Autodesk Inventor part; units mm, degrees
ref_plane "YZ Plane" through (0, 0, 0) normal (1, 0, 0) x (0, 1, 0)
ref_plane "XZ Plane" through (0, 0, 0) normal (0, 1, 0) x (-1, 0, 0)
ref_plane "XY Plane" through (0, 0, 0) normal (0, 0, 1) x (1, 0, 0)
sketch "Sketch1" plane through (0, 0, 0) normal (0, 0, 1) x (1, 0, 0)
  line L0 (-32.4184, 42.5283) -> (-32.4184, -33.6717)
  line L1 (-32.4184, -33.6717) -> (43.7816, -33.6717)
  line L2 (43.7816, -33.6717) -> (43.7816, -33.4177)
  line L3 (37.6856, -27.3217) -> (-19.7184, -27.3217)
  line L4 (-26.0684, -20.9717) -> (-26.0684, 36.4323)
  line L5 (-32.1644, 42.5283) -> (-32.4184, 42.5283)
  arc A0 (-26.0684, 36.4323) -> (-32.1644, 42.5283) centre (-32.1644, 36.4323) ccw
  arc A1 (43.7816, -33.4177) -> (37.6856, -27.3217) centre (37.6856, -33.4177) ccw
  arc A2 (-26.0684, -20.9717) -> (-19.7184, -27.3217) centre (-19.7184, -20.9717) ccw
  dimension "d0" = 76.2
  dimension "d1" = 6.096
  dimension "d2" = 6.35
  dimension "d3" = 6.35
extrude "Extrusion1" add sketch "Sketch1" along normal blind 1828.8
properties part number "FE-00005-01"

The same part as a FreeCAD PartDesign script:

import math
import FreeCAD as App
import Part
import Sketcher
Q = App.Units.Quantity

doc = App.newDocument("Part")
params = doc.addObject("Spreadsheet::Sheet", "Params")
for row, (alias, value) in enumerate([
    ("sketch1_width", "3 in"),
    ("sketch1_radius", "0.24 in"),
    ("sketch1_radius2", "0.25 in"),
    ("pad1_length", "72 in"),
], start=1):
    params.set(f"A{row}", alias)
    params.set(f"B{row}", "=" + value)
    params.setAlias(f"B{row}", alias)

body = doc.addObject("PartDesign::Body", "Body")

sketch1 = doc.addObject("Sketcher::SketchObject", "Sketch")
body.addObject(sketch1)
sketch1.AttachmentSupport = (doc.XY_Plane, [""])
sketch1.MapMode = "FlatFace"
sketch1.addGeometry(Part.LineSegment(App.Vector(-32.16, 42.53, 0), App.Vector(-32.42, 42.53, 0)), False)
sketch1.addGeometry(Part.LineSegment(App.Vector(-32.42, 42.53, 0), App.Vector(-32.42, -33.67, 0)), False)
sketch1.addGeometry(Part.LineSegment(App.Vector(-32.42, -33.67, 0), App.Vector(43.78, -33.67, 0)), False)
sketch1.addGeometry(Part.LineSegment(App.Vector(43.78, -33.67, 0), App.Vector(43.78, -33.42, 0)), False)
sketch1.addGeometry(Part.ArcOfCircle(Part.Circle(App.Vector(37.69, -33.42, 0), App.Vector(0, 0, 1), 6.1), math.radians(0), math.radians(90)), False)
sketch1.addGeometry(Part.LineSegment(App.Vector(37.69, -27.32, 0), App.Vector(-19.72, -27.32, 0)), False)
sketch1.addGeometry(Part.ArcOfCircle(Part.Circle(App.Vector(-19.72, -20.97, 0), App.Vector(0, 0, 1), 6.35), math.radians(180), math.radians(270)), False)
sketch1.addGeometry(Part.LineSegment(App.Vector(-26.07, -20.97, 0), App.Vector(-26.07, 36.43, 0)), False)
sketch1.addGeometry(Part.ArcOfCircle(Part.Circle(App.Vector(-32.16, 36.43, 0), App.Vector(0, 0, 1), 6.1), math.radians(0), math.radians(90)), False)
sketch1.addConstraint(Sketcher.Constraint("Coincident", 0, 2, 1, 1))
sketch1.addConstraint(Sketcher.Constraint("Coincident", 1, 2, 2, 1))
sketch1.addConstraint(Sketcher.Constraint("Coincident", 2, 2, 3, 1))
sketch1.addConstraint(Sketcher.Constraint("Tangent", 3, 2, 4, 1))
sketch1.addConstraint(Sketcher.Constraint("Tangent", 4, 2, 5, 1))
sketch1.addConstraint(Sketcher.Constraint("Tangent", 5, 2, 6, 2))
sketch1.addConstraint(Sketcher.Constraint("Tangent", 6, 1, 7, 1))
sketch1.addConstraint(Sketcher.Constraint("Tangent", 7, 2, 8, 1))
sketch1.addConstraint(Sketcher.Constraint("Tangent", 8, 2, 0, 1))
sketch1.addConstraint(Sketcher.Constraint("Horizontal", 0))
sketch1.addConstraint(Sketcher.Constraint("Vertical", 1))
sketch1.addConstraint(Sketcher.Constraint("Horizontal", 2))
sketch1.addConstraint(Sketcher.Constraint("Vertical", 3))
sketch1.addConstraint(Sketcher.Constraint("Horizontal", 5))
sketch1.addConstraint(Sketcher.Constraint("Vertical", 7))
sketch1.addConstraint(Sketcher.Constraint("Equal", 4, 8))
sketch1.addConstraint(Sketcher.Constraint("Equal", 2, 1))
sketch1.addConstraint(Sketcher.Constraint("Equal", 0, 3))
sketch1.addConstraint(Sketcher.Constraint("DistanceX", 2, 1, 2, 2, Q("3 in")))
sketch1.addConstraint(Sketcher.Constraint("Radius", 4, Q("0.24 in")))
sketch1.addConstraint(Sketcher.Constraint("Radius", 6, Q("0.25 in")))
sketch1.addConstraint(Sketcher.Constraint("DistanceY", 2, 2, 4, 2, Q("0.25 in")))
sketch1.addConstraint(Sketcher.Constraint("DistanceX", -1, 1, 4, 3, 37.6856))
sketch1.addConstraint(Sketcher.Constraint("DistanceY", 4, 3, -1, 1, 33.4177))
sketch1.setExpression("Constraints[18]", "Params.sketch1_width")
sketch1.setExpression("Constraints[19]", "Params.sketch1_radius")
sketch1.setExpression("Constraints[20]", "Params.sketch1_radius2")
pad1 = doc.addObject("PartDesign::Pad", "Pad")
body.addObject(pad1)
pad1.Profile = sketch1
pad1.setExpression("Length", "Params.pad1_length")

doc.recompute()
